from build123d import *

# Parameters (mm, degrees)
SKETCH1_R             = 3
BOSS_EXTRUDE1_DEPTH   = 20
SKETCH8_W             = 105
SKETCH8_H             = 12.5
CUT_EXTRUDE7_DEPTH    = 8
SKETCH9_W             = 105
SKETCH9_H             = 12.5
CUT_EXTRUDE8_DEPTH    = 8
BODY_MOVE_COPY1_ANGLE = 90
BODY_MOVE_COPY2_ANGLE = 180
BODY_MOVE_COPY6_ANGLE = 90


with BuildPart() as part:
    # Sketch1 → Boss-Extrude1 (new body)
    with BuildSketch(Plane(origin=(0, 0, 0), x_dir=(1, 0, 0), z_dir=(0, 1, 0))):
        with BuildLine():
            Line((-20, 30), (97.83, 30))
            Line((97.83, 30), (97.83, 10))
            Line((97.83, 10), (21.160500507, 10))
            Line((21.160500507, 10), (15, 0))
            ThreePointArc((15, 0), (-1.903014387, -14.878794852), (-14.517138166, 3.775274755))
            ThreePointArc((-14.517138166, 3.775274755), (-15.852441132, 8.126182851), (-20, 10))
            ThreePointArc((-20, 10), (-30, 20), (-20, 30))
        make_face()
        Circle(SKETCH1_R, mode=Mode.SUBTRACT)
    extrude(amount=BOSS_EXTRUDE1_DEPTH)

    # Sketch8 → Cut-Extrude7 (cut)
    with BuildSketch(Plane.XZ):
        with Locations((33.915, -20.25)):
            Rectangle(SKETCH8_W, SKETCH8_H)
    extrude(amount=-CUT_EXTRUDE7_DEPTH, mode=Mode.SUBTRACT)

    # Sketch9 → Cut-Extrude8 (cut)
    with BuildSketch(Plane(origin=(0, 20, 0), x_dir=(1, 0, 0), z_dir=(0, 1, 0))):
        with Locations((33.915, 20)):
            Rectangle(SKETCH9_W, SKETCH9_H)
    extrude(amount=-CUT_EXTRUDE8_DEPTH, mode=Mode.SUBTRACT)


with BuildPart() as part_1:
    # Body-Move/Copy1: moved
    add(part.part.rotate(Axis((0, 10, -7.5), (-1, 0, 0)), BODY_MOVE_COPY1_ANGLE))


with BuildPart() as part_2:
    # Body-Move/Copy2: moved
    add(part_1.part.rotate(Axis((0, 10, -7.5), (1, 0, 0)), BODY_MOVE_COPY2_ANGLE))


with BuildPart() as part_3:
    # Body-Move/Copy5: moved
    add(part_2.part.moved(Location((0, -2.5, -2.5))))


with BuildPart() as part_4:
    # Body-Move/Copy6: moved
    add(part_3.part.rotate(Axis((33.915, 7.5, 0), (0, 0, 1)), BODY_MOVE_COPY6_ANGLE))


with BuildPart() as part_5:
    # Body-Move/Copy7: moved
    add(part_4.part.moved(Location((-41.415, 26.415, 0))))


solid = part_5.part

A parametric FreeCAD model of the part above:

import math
import FreeCAD as App
import Part
import Sketcher

V = App.Vector
Q = App.Units.Quantity

doc = App.newDocument("Part")
body = doc.addObject("PartDesign::Body", "Body")

# Sketch on XZ plane
sketch1 = body.newObject("Sketcher::SketchObject", "Sketch")
sketch1.AttachmentSupport = (doc.getObject("XZ_Plane"), [""])
sketch1.MapMode = "FlatFace"
sketch1.addGeometry([
    Part.LineSegment(V(97.8, -30, 0), V(-20, -30, 0)),  # 0
    Part.ArcOfCircle(Part.Circle(V(-20, -20, 0), V(0, 0, 1), 10), math.radians(90), math.radians(270)),  # 1
    Part.ArcOfCircle(Part.Circle(V(-20, -4.5, 0), V(0, 0, 1), 5.5), math.radians(-90), math.radians(7)),  # 2
    Part.ArcOfCircle(Part.Circle(V(0, 0, 0), V(0, 0, 1), 15), math.radians(0), math.radians(195)),  # 3
    Part.LineSegment(V(15, 0, 0), V(21.2, -10, 0)),  # 4
    Part.LineSegment(V(21.2, -10, 0), V(97.8, -10, 0)),  # 5
    Part.LineSegment(V(97.8, -10, 0), V(97.8, -30, 0)),  # 6
    Part.Circle(V(0, 0, 0), V(0, 0, 1), 3),  # 7
], False)
sketch1.addConstraint([
    Sketcher.Constraint("Tangent", 0, 2, 1, 2),
    Sketcher.Constraint("Tangent", 1, 1, 2, 1),
    Sketcher.Constraint("Coincident", 2, 2, 3, 2),
    Sketcher.Constraint("Coincident", 3, 1, 4, 1),
    Sketcher.Constraint("Coincident", 4, 2, 5, 1),
    Sketcher.Constraint("Coincident", 5, 2, 6, 1),
    Sketcher.Constraint("Coincident", 6, 2, 0, 1),
    Sketcher.Constraint("Horizontal", 0),
    Sketcher.Constraint("Horizontal", 5),
    Sketcher.Constraint("Vertical", 6),
    Sketcher.Constraint("Coincident", 3, 3, -1, 1),
    Sketcher.Constraint("Coincident", 7, 3, -1, 1),
    Sketcher.Constraint("PointOnObject", 3, 1, -1),
    Sketcher.Constraint("Horizontal", 1, 1, 4, 2),
    Sketcher.Constraint("Vertical", 1, 3, 2, 3),
    Sketcher.Constraint("Diameter", 7, Q("6 mm")),
    Sketcher.Constraint("Radius", 1, Q("10 mm")),
    Sketcher.Constraint("Radius", 3, Q("15 mm")),
    Sketcher.Constraint("DistanceX", 1, 3, -1, 1, Q("20 mm")),
    Sketcher.Constraint("DistanceY", 1, 3, -1, 1, Q("20 mm")),
    Sketcher.Constraint("DistanceX", 0, 2, 0, 1, Q("117.83 mm")),
    Sketcher.Constraint("Radius", 2, Q("5.52707 mm")),
    Sketcher.Constraint("DistanceX", 5, 1, 5, 2, Q("76.669499 mm")),
])
pad1 = body.newObject("PartDesign::Pad", "Pad")
pad1.Profile = sketch1
pad1.Length = 20
pad1.Reversed = True

# Sketch on XZ plane
sketch2 = body.newObject("Sketcher::SketchObject", "Sketch001")
sketch2.AttachmentSupport = (doc.getObject("XZ_Plane"), [""])
sketch2.MapMode = "FlatFace"
sketch2.addGeometry([
    Part.LineSegment(V(-19, -14, 0), V(-19, -26, 0)),
    Part.LineSegment(V(-19, -26, 0), V(86, -26, 0)),
    Part.LineSegment(V(86, -26, 0), V(86, -14, 0)),
    Part.LineSegment(V(86, -14, 0), V(-19, -14, 0)),
], False)
sketch2.addConstraint([
    Sketcher.Constraint("Coincident", 0, 2, 1, 1),
    Sketcher.Constraint("Coincident", 1, 2, 2, 1),
    Sketcher.Constraint("Coincident", 2, 2, 3, 1),
    Sketcher.Constraint("Coincident", 3, 2, 0, 1),
    Sketcher.Constraint("Vertical", 0),
    Sketcher.Constraint("Horizontal", 1),
    Sketcher.Constraint("Vertical", 2),
    Sketcher.Constraint("Horizontal", 3),
    Sketcher.Constraint("DistanceX", 1, 1, 1, 2, Q("105 mm")),
    Sketcher.Constraint("DistanceY", 0, 2, 0, 1, Q("12.5 mm")),
    Sketcher.Constraint("DistanceY", 2, 2, -1, 1, Q("14 mm")),
    Sketcher.Constraint("DistanceX", 0, 2, -1, 1, Q("18.585 mm")),
])
pocket1 = body.newObject("PartDesign::Pocket", "Pocket")
pocket1.Profile = sketch2
pocket1.Length = 8

# Sketch on XZ plane
sketch3 = body.newObject("Sketcher::SketchObject", "Sketch002")
sketch3.AttachmentSupport = (doc.getObject("XZ_Plane"), [""])
sketch3.MapMode = "FlatFace"
sketch3.AttachmentOffset = App.Placement(V(0, 0, -20), App.Rotation())
sketch3.addGeometry([
    Part.LineSegment(V(-19, -26, 0), V(-19, -14, 0)),
    Part.LineSegment(V(-19, -14, 0), V(86, -14, 0)),
    Part.LineSegment(V(86, -14, 0), V(86, -26, 0)),
    Part.LineSegment(V(86, -26, 0), V(-19, -26, 0)),
], False)
sketch3.addConstraint([
    Sketcher.Constraint("Coincident", 0, 2, 1, 1),
    Sketcher.Constraint("Coincident", 1, 2, 2, 1),
    Sketcher.Constraint("Coincident", 2, 2, 3, 1),
    Sketcher.Constraint("Coincident", 3, 2, 0, 1),
    Sketcher.Constraint("Vertical", 0),
    Sketcher.Constraint("Horizontal", 1),
    Sketcher.Constraint("Vertical", 2),
    Sketcher.Constraint("Horizontal", 3),
    Sketcher.Constraint("DistanceX", 1, 1, 1, 2, Q("105 mm")),
    Sketcher.Constraint("DistanceY", 0, 1, 0, 2, Q("12.5 mm")),
    Sketcher.Constraint("DistanceY", 0, 2, -1, 1, Q("13.75 mm")),
    Sketcher.Constraint("DistanceX", 0, 2, -1, 1, Q("18.585 mm")),
])
pocket2 = body.newObject("PartDesign::Pocket", "Pocket001")
pocket2.Profile = sketch3
pocket2.Length = 8
pocket2.Reversed = True
body2 = doc.addObject("PartDesign::Body", "Body001")
doc.recompute()

body.Placement = App.Placement(V(0, 17.5, 2.5), App.Rotation(V(-1, 0, 0), 90))
boolean = body2.newObject("PartDesign::Boolean", "Boolean")
boolean.Type = "Fuse"
boolean.addObjects([body])
body3 = doc.addObject("PartDesign::Body", "Body002")
doc.recompute()

body2.Placement = App.Placement(V(0, 20, -15), App.Rotation(V(1, 0, 0), 180))
boolean2 = body3.newObject("PartDesign::Boolean", "Boolean001")
boolean2.Type = "Fuse"
boolean2.addObjects([body2])
body4 = doc.addObject("PartDesign::Body", "Body003")
doc.recompute()

body3.Placement = App.Placement(V(0, -2.5, -2.5), App.Rotation(V(0, 0, 1), 0))
boolean3 = body4.newObject("PartDesign::Boolean", "Boolean002")
boolean3.Type = "Fuse"
boolean3.addObjects([body3])
body5 = doc.addObject("PartDesign::Body", "Body004")
doc.recompute()

body4.Placement = App.Placement(V(41.415, -26.415, 0), App.Rotation(V(0, 0, 1), 90))
boolean4 = body5.newObject("PartDesign::Boolean", "Boolean003")
boolean4.Type = "Fuse"
boolean4.addObjects([body4])
body6 = doc.addObject("PartDesign::Body", "Body005")
doc.recompute()

body5.Placement = App.Placement(V(-41.415, 26.415, 0), App.Rotation(V(0, 0, 1), 0))
boolean5 = body6.newObject("PartDesign::Boolean", "Boolean004")
boolean5.Type = "Fuse"
boolean5.addObjects([body5])

doc.recompute()
